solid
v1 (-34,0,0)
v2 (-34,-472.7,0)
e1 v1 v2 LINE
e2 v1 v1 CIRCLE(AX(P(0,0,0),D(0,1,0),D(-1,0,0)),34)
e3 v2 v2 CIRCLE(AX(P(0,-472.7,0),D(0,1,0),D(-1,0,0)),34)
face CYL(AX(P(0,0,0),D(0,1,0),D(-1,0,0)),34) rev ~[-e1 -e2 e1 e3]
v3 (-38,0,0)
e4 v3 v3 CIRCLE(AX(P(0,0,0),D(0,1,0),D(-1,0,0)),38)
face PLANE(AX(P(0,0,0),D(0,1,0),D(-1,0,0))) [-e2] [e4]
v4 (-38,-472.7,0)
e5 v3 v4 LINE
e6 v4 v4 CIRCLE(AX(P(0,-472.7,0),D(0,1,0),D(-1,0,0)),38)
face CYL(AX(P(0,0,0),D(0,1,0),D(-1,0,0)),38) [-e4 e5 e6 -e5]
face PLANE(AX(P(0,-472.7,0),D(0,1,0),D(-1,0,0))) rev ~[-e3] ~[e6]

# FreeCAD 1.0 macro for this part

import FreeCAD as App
import Part
import Sketcher
from FreeCAD import Vector
Q = App.Units.Quantity

doc = App.newDocument("Part")
body = doc.addObject("PartDesign::Body", "Body")

# Sketch on XZ plane
sketch1 = body.newObject("Sketcher::SketchObject", "Sketch")
sketch1.AttachmentSupport = (doc.getObject("XZ_Plane"), [""])
sketch1.MapMode = "FlatFace"
sketch1.addGeometry([
    Part.Circle(Vector(0, 0, 0), Vector(0, 0, 1), 38),
    Part.Circle(Vector(0, 0, 0), Vector(0, 0, 1), 34),
], False)
sketch1.addConstraint([
    Sketcher.Constraint("Coincident", 0, 3, -1, 1),
    Sketcher.Constraint("Coincident", 1, 3, -1, 1),
    Sketcher.Constraint("Diameter", 0, Q("76 mm")),
    Sketcher.Constraint("Diameter", 1, Q("68 mm")),
])
pad1 = body.newObject("PartDesign::Pad", "Pad")
pad1.Profile = sketch1
pad1.Length = 472.7

doc.recompute()
